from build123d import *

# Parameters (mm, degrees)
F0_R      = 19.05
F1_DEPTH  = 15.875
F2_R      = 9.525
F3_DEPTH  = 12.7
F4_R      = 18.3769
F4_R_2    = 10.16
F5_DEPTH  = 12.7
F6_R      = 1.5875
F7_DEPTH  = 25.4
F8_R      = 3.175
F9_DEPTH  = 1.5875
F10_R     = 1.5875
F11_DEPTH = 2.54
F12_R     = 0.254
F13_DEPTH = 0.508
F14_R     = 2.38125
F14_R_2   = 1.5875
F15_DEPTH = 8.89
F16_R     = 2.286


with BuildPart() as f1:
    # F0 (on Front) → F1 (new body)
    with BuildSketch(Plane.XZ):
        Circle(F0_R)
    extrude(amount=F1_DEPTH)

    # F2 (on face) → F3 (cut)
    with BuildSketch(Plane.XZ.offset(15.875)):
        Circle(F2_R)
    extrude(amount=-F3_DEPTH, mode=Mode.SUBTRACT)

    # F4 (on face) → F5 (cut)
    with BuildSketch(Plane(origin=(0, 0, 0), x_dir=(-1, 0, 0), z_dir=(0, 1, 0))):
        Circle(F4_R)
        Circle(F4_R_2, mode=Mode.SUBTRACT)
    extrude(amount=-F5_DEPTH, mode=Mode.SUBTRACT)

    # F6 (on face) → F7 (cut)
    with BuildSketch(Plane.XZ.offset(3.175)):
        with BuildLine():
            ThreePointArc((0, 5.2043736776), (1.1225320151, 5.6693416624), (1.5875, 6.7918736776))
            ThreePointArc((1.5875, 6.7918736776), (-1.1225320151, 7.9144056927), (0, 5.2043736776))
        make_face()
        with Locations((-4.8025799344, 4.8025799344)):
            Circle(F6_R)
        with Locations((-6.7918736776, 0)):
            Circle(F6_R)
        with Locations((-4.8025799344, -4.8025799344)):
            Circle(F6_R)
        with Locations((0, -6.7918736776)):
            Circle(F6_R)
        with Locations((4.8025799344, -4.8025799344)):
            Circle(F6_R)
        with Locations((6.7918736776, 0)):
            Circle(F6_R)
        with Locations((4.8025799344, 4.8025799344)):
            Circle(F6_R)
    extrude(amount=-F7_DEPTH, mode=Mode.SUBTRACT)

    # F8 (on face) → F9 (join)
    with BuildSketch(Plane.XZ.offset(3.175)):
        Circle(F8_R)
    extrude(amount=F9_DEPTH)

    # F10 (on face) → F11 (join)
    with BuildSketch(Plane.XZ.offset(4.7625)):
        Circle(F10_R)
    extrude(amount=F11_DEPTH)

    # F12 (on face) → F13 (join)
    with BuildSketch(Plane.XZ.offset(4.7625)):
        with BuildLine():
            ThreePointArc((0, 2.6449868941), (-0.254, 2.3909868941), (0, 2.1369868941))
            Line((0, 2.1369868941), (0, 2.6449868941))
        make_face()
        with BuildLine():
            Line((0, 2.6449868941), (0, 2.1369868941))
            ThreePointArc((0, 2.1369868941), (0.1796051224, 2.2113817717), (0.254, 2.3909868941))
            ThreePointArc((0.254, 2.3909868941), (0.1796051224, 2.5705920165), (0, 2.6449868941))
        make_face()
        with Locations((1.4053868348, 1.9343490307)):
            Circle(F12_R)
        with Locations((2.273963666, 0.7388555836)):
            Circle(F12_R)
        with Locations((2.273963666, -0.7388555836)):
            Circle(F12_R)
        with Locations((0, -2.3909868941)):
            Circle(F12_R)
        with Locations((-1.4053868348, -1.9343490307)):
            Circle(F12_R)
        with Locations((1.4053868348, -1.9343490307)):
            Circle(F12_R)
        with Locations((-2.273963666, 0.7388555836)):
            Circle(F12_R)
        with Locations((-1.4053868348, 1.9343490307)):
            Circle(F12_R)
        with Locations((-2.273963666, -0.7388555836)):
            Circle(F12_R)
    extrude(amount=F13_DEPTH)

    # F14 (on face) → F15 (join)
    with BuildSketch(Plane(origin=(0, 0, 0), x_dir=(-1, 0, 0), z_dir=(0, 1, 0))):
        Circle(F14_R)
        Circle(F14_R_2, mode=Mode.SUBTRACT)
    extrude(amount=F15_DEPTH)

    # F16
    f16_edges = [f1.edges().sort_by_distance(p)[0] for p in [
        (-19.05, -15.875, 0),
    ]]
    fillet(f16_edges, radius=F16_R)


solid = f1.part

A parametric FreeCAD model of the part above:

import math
import FreeCAD as App
import Part
import Sketcher
Q = App.Units.Quantity


def edges_at(feature, points):
    """Names of the edges that pass closest to the given points."""
    edges = feature.Shape.Edges
    near = lambda p: min(range(len(edges)), key=lambda i: edges[i].distToShape(Part.Vertex(*p))[0])
    return sorted({f"Edge{near(p) + 1}" for p in points})

doc = App.newDocument("Part")
params = doc.addObject("Spreadsheet::Sheet", "Params")
for row, (alias, value) in enumerate([
    ("sketch1_diameter", "1.5 in"),
    ("pad1_length", "0.625 in"),
    ("sketch2_diameter", "0.75 in"),
    ("pocket1_length", "0.5 in"),
    ("sketch3_diameter", "0.8 in"),
    ("sketch3_diameter2", "1.447 in"),
    ("pocket2_length", "0.5 in"),
    ("sketch4_diameter", "0.125 in"),
    ("pocket3_length", "1 in"),
    ("sketch5_diameter", "0.25 in"),
    ("pad2_length", "0.0625 in"),
    ("sketch6_diameter", "0.125 in"),
    ("pad3_length", "0.1 in"),
    ("sketch7_diameter", "0.02 in"),
    ("pad4_length", "0.02 in"),
    ("sketch8_diameter", "0.1875 in"),
    ("sketch8_diameter2", "0.125 in"),
    ("pad5_length", "0.35 in"),
    ("fillet_radius", "0.09 in"),
], start=1):
    params.set(f"A{row}", alias)
    params.set(f"B{row}", "=" + value)
    params.setAlias(f"B{row}", alias)

body = doc.addObject("PartDesign::Body", "Body")

# Sketch on XZ plane
sketch1 = body.newObject("Sketcher::SketchObject", "Sketch")
sketch1.AttachmentSupport = (doc.getObject("XZ_Plane"), [""])
sketch1.MapMode = "FlatFace"
sketch1.addGeometry(Part.Circle(App.Vector(0, 0, 0), App.Vector(0, 0, 1), 19), False)
sketch1.addConstraint(Sketcher.Constraint("Coincident", 0, 3, -1, 1))
sketch1.addConstraint(Sketcher.Constraint("Diameter", 0, Q("1.5 in")))
sketch1.setExpression("Constraints[1]", "Params.sketch1_diameter")
pad1 = body.newObject("PartDesign::Pad", "Pad")
pad1.Profile = sketch1
pad1.setExpression("Length", "Params.pad1_length")

# Sketch on XZ plane
sketch2 = body.newObject("Sketcher::SketchObject", "Sketch001")
sketch2.AttachmentSupport = (doc.getObject("XZ_Plane"), [""])
sketch2.MapMode = "FlatFace"
sketch2.AttachmentOffset = App.Placement(App.Vector(0, 0, 0.625 * 25.4), App.Rotation())
sketch2.addGeometry(Part.Circle(App.Vector(0, 0, 0), App.Vector(0, 0, 1), 10), False)
sketch2.addConstraint(Sketcher.Constraint("Coincident", 0, 3, -1, 1))
sketch2.addConstraint(Sketcher.Constraint("Diameter", 0, Q("0.75 in")))
sketch2.setExpression("Constraints[1]", "Params.sketch2_diameter")
pocket1 = body.newObject("PartDesign::Pocket", "Pocket")
pocket1.Profile = sketch2
pocket1.setExpression("Length", "Params.pocket1_length")

# Sketch on XZ plane
sketch3 = body.newObject("Sketcher::SketchObject", "Sketch002")
sketch3.AttachmentSupport = (doc.getObject("XZ_Plane"), [""])
sketch3.MapMode = "FlatFace"
sketch3.addGeometry(Part.Circle(App.Vector(0, 0, 0), App.Vector(0, 0, 1), 18), False)
sketch3.addGeometry(Part.Circle(App.Vector(0, 0, 0), App.Vector(0, 0, 1), 10), False)
sketch3.addConstraint(Sketcher.Constraint("Coincident", 0, 3, -1, 1))
sketch3.addConstraint(Sketcher.Constraint("Coincident", 1, 3, -1, 1))
sketch3.addConstraint(Sketcher.Constraint("Diameter", 1, Q("0.8 in")))
sketch3.addConstraint(Sketcher.Constraint("Diameter", 0, Q("1.447 in")))
sketch3.setExpression("Constraints[2]", "Params.sketch3_diameter")
sketch3.setExpression("Constraints[3]", "Params.sketch3_diameter2")
pocket2 = body.newObject("PartDesign::Pocket", "Pocket001")
pocket2.Profile = sketch3
pocket2.setExpression("Length", "Params.pocket2_length")
pocket2.Reversed = True

# Sketch on XZ plane
sketch4 = body.newObject("Sketcher::SketchObject", "Sketch003")
sketch4.AttachmentSupport = (doc.getObject("XZ_Plane"), [""])
sketch4.MapMode = "FlatFace"
sketch4.AttachmentOffset = App.Placement(App.Vector(0, 0, 0.125 * 25.4), App.Rotation())
sketch4.addGeometry(Part.ArcOfCircle(Part.Circle(App.Vector(0, 6.8, 0), App.Vector(0, 0, 1), 1.6), math.radians(-90), math.radians(0)), False)
sketch4.addGeometry(Part.ArcOfCircle(Part.Circle(App.Vector(0, 6.8, 0), App.Vector(0, 0, 1), 1.6), math.radians(0), math.radians(270)), False)
sketch4.addGeometry(Part.Circle(App.Vector(-4.8, 4.8, 0), App.Vector(0, 0, 1), 1.6), False)
sketch4.addGeometry(Part.Circle(App.Vector(-6.8, 0, 0), App.Vector(0, 0, 1), 1.6), False)
sketch4.addGeometry(Part.Circle(App.Vector(-4.8, -4.8, 0), App.Vector(0, 0, 1), 1.6), False)
sketch4.addGeometry(Part.Circle(App.Vector(0, -6.8, 0), App.Vector(0, 0, 1), 1.6), False)
sketch4.addGeometry(Part.Circle(App.Vector(4.8, -4.8, 0), App.Vector(0, 0, 1), 1.6), False)
sketch4.addGeometry(Part.Circle(App.Vector(6.8, 0, 0), App.Vector(0, 0, 1), 1.6), False)
sketch4.addGeometry(Part.Circle(App.Vector(4.8, 4.8, 0), App.Vector(0, 0, 1), 1.6), False)
sketch4.addConstraint(Sketcher.Constraint("Tangent", 0, 1, 1, 2))
sketch4.addConstraint(Sketcher.Constraint("Coincident", 1, 1, 0, 2))
sketch4.addConstraint(Sketcher.Constraint("Equal", 1, 2))
sketch4.addConstraint(Sketcher.Constraint("Equal", 2, 3))
sketch4.addConstraint(Sketcher.Constraint("Equal", 3, 4))
sketch4.addConstraint(Sketcher.Constraint("Equal", 4, 5))
sketch4.addConstraint(Sketcher.Constraint("Equal", 5, 6))
sketch4.addConstraint(Sketcher.Constraint("Equal", 6, 7))
sketch4.addConstraint(Sketcher.Constraint("Equal", 7, 8))
sketch4.addConstraint(Sketcher.Constraint("Symmetric", 0, 3, 5, 3, -1, 1))
sketch4.addConstraint(Sketcher.Constraint("Symmetric", 2, 3, 6, 3, -1, 1))
sketch4.addConstraint(Sketcher.Constraint("Symmetric", 3, 3, 7, 3, -1, 1))
sketch4.addConstraint(Sketcher.Constraint("Symmetric", 4, 3, 8, 3, -1, 1))
sketch4.addConstraint(Sketcher.Constraint("Symmetric", 4, 3, 6, 3, -2))
sketch4.addConstraint(Sketcher.Constraint("PointOnObject", 0, 3, -2))
sketch4.addConstraint(Sketcher.Constraint("PointOnObject", 3, 3, -1))
sketch4.addConstraint(Sketcher.Constraint("PointOnObject", 0, 1, -2))
sketch4.addConstraint(Sketcher.Constraint("Horizontal", 0, 3, 1, 1))
sketch4.addConstraint(Sketcher.Constraint("Diameter", 2, Q("0.125 in")))
sketch4.addConstraint(Sketcher.Constraint("DistanceX", 2, 3, -1, 1, 4.80258))
sketch4.addConstraint(Sketcher.Constraint("DistanceY", -1, 1, 2, 3, 4.80258))
sketch4.addConstraint(Sketcher.Constraint("DistanceY", -1, 1, 0, 3, 6.791874))
sketch4.addConstraint(Sketcher.Constraint("DistanceX", 3, 3, -1, 1, 6.791874))
sketch4.setExpression("Constraints[18]", "Params.sketch4_diameter")
pocket3 = body.newObject("PartDesign::Pocket", "Pocket002")
pocket3.Profile = sketch4
pocket3.setExpression("Length", "Params.pocket3_length")

# Sketch on XZ plane
sketch5 = body.newObject("Sketcher::SketchObject", "Sketch004")
sketch5.AttachmentSupport = (doc.getObject("XZ_Plane"), [""])
sketch5.MapMode = "FlatFace"
sketch5.AttachmentOffset = App.Placement(App.Vector(0, 0, 0.125 * 25.4), App.Rotation())
sketch5.addGeometry(Part.Circle(App.Vector(0, 0, 0), App.Vector(0, 0, 1), 3.2), False)
sketch5.addConstraint(Sketcher.Constraint("Coincident", 0, 3, -1, 1))
sketch5.addConstraint(Sketcher.Constraint("Diameter", 0, Q("0.25 in")))
sketch5.setExpression("Constraints[1]", "Params.sketch5_diameter")
pad2 = body.newObject("PartDesign::Pad", "Pad001")
pad2.Profile = sketch5
pad2.setExpression("Length", "Params.pad2_length")

# Sketch on XZ plane
sketch6 = body.newObject("Sketcher::SketchObject", "Sketch005")
sketch6.AttachmentSupport = (doc.getObject("XZ_Plane"), [""])
sketch6.MapMode = "FlatFace"
sketch6.AttachmentOffset = App.Placement(App.Vector(0, 0, 0.1875 * 25.4), App.Rotation())
sketch6.addGeometry(Part.Circle(App.Vector(0, 0, 0), App.Vector(0, 0, 1), 1.6), False)
sketch6.addConstraint(Sketcher.Constraint("Coincident", 0, 3, -1, 1))
sketch6.addConstraint(Sketcher.Constraint("Diameter", 0, Q("0.125 in")))
sketch6.setExpression("Constraints[1]", "Params.sketch6_diameter")
pad3 = body.newObject("PartDesign::Pad", "Pad002")
pad3.Profile = sketch6
pad3.setExpression("Length", "Params.pad3_length")

# Sketch on XZ plane
sketch7 = body.newObject("Sketcher::SketchObject", "Sketch006")
sketch7.AttachmentSupport = (doc.getObject("XZ_Plane"), [""])
sketch7.MapMode = "FlatFace"
sketch7.AttachmentOffset = App.Placement(App.Vector(0, 0, 0.1875 * 25.4), App.Rotation())
sketch7.addGeometry(Part.ArcOfCircle(Part.Circle(App.Vector(0, 2.39, 0), App.Vector(0, 0, 1), 0.25), math.radians(90), math.radians(270)), False)
sketch7.addGeometry(Part.ArcOfCircle(Part.Circle(App.Vector(0, 2.39, 0), App.Vector(0, 0, 1), 0.25), math.radians(-90), math.radians(0)), False)
sketch7.addGeometry(Part.ArcOfCircle(Part.Circle(App.Vector(0, 2.39, 0), App.Vector(0, 0, 1), 0.25), math.radians(0), math.radians(90)), False)
sketch7.addGeometry(Part.Circle(App.Vector(1.41, 1.93, 0), App.Vector(0, 0, 1), 0.25), False)
sketch7.addGeometry(Part.Circle(App.Vector(2.27, 0.74, 0), App.Vector(0, 0, 1), 0.25), False)
sketch7.addGeometry(Part.Circle(App.Vector(2.27, -0.74, 0), App.Vector(0, 0, 1), 0.25), False)
sketch7.addGeometry(Part.Circle(App.Vector(0, -2.39, 0), App.Vector(0, 0, 1), 0.25), False)
sketch7.addGeometry(Part.Circle(App.Vector(-1.41, -1.93, 0), App.Vector(0, 0, 1), 0.25), False)
sketch7.addGeometry(Part.Circle(App.Vector(1.41, -1.93, 0), App.Vector(0, 0, 1), 0.25), False)
sketch7.addGeometry(Part.Circle(App.Vector(-2.27, 0.74, 0), App.Vector(0, 0, 1), 0.25), False)
sketch7.addGeometry(Part.Circle(App.Vector(-1.41, 1.93, 0), App.Vector(0, 0, 1), 0.25), False)
sketch7.addGeometry(Part.Circle(App.Vector(-2.27, -0.74, 0), App.Vector(0, 0, 1), 0.25), False)
sketch7.addConstraint(Sketcher.Constraint("Tangent", 0, 2, 1, 1))
sketch7.addConstraint(Sketcher.Constraint("Tangent", 1, 2, 2, 1))
sketch7.addConstraint(Sketcher.Constraint("Tangent", 2, 2, 0, 1))
sketch7.addConstraint(Sketcher.Constraint("Equal", 2, 3))
sketch7.addConstraint(Sketcher.Constraint("Equal", 3, 4))
sketch7.addConstraint(Sketcher.Constraint("Equal", 4, 5))
sketch7.addConstraint(Sketcher.Constraint("Equal", 5, 6))
sketch7.addConstraint(Sketcher.Constraint("Equal", 6, 7))
sketch7.addConstraint(Sketcher.Constraint("Equal", 7, 8))
sketch7.addConstraint(Sketcher.Constraint("Equal", 8, 9))
sketch7.addConstraint(Sketcher.Constraint("Equal", 9, 10))
sketch7.addConstraint(Sketcher.Constraint("Equal", 10, 11))
sketch7.addConstraint(Sketcher.Constraint("Symmetric", 0, 3, 6, 3, -1, 1))
sketch7.addConstraint(Sketcher.Constraint("Symmetric", 3, 3, 7, 3, -1, 1))
sketch7.addConstraint(Sketcher.Constraint("Symmetric", 5, 3, 9, 3, -1, 1))
sketch7.addConstraint(Sketcher.Constraint("Symmetric", 8, 3, 10, 3, -1, 1))
sketch7.addConstraint(Sketcher.Constraint("Symmetric", 4, 3, 11, 3, -1, 1))
sketch7.addConstraint(Sketcher.Constraint("Symmetric", 7, 3, 8, 3, -2))
sketch7.addConstraint(Sketcher.Constraint("Symmetric", 4, 3, 9, 3, -2))
sketch7.addConstraint(Sketcher.Constraint("PointOnObject", 0, 3, -2))
sketch7.addConstraint(Sketcher.Constraint("PointOnObject", 0, 2, -2))
sketch7.addConstraint(Sketcher.Constraint("PointOnObject", 2, 2, -2))
sketch7.addConstraint(Sketcher.Constraint("Horizontal", 2, 3, 1, 2))
sketch7.addConstraint(Sketcher.Constraint("Diameter", 3, Q("0.02 in")))
sketch7.addConstraint(Sketcher.Constraint("DistanceY", 8, 3, 3, 3, 3.868698))
sketch7.addConstraint(Sketcher.Constraint("DistanceY", 4, 3, 0, 3, 1.652131))
sketch7.addConstraint(Sketcher.Constraint("DistanceY", 5, 3, 4, 3, 1.477711))
sketch7.addConstraint(Sketcher.Constraint("DistanceX", 7, 3, 5, 3, 3.679351))
sketch7.addConstraint(Sketcher.Constraint("DistanceX", -1, 1, 3, 3, 1.405387))
sketch7.setExpression("Constraints[23]", "Params.sketch7_diameter")
pad4 = body.newObject("PartDesign::Pad", "Pad003")
pad4.Profile = sketch7
pad4.setExpression("Length", "Params.pad4_length")

# Sketch on XZ plane
sketch8 = body.newObject("Sketcher::SketchObject", "Sketch007")
sketch8.AttachmentSupport = (doc.getObject("XZ_Plane"), [""])
sketch8.MapMode = "FlatFace"
sketch8.addGeometry(Part.Circle(App.Vector(0, 0, 0), App.Vector(0, 0, 1), 2.4), False)
sketch8.addGeometry(Part.Circle(App.Vector(0, 0, 0), App.Vector(0, 0, 1), 1.6), False)
sketch8.addConstraint(Sketcher.Constraint("Coincident", 0, 3, -1, 1))
sketch8.addConstraint(Sketcher.Constraint("Coincident", 1, 3, -1, 1))
sketch8.addConstraint(Sketcher.Constraint("Diameter", 0, Q("0.1875 in")))
sketch8.addConstraint(Sketcher.Constraint("Diameter", 1, Q("0.125 in")))
sketch8.setExpression("Constraints[2]", "Params.sketch8_diameter")
sketch8.setExpression("Constraints[3]", "Params.sketch8_diameter2")
pad5 = body.newObject("PartDesign::Pad", "Pad004")
pad5.Profile = sketch8
pad5.setExpression("Length", "Params.pad5_length")
pad5.Reversed = True
doc.recompute()

fillet = body.newObject("PartDesign::Fillet", "Fillet")
fillet.Base = (pad5, edges_at(pad5, [(-19.05, -15.875, 0)]))
fillet.setExpression("Radius", "Params.fillet_radius")

doc.recompute()
